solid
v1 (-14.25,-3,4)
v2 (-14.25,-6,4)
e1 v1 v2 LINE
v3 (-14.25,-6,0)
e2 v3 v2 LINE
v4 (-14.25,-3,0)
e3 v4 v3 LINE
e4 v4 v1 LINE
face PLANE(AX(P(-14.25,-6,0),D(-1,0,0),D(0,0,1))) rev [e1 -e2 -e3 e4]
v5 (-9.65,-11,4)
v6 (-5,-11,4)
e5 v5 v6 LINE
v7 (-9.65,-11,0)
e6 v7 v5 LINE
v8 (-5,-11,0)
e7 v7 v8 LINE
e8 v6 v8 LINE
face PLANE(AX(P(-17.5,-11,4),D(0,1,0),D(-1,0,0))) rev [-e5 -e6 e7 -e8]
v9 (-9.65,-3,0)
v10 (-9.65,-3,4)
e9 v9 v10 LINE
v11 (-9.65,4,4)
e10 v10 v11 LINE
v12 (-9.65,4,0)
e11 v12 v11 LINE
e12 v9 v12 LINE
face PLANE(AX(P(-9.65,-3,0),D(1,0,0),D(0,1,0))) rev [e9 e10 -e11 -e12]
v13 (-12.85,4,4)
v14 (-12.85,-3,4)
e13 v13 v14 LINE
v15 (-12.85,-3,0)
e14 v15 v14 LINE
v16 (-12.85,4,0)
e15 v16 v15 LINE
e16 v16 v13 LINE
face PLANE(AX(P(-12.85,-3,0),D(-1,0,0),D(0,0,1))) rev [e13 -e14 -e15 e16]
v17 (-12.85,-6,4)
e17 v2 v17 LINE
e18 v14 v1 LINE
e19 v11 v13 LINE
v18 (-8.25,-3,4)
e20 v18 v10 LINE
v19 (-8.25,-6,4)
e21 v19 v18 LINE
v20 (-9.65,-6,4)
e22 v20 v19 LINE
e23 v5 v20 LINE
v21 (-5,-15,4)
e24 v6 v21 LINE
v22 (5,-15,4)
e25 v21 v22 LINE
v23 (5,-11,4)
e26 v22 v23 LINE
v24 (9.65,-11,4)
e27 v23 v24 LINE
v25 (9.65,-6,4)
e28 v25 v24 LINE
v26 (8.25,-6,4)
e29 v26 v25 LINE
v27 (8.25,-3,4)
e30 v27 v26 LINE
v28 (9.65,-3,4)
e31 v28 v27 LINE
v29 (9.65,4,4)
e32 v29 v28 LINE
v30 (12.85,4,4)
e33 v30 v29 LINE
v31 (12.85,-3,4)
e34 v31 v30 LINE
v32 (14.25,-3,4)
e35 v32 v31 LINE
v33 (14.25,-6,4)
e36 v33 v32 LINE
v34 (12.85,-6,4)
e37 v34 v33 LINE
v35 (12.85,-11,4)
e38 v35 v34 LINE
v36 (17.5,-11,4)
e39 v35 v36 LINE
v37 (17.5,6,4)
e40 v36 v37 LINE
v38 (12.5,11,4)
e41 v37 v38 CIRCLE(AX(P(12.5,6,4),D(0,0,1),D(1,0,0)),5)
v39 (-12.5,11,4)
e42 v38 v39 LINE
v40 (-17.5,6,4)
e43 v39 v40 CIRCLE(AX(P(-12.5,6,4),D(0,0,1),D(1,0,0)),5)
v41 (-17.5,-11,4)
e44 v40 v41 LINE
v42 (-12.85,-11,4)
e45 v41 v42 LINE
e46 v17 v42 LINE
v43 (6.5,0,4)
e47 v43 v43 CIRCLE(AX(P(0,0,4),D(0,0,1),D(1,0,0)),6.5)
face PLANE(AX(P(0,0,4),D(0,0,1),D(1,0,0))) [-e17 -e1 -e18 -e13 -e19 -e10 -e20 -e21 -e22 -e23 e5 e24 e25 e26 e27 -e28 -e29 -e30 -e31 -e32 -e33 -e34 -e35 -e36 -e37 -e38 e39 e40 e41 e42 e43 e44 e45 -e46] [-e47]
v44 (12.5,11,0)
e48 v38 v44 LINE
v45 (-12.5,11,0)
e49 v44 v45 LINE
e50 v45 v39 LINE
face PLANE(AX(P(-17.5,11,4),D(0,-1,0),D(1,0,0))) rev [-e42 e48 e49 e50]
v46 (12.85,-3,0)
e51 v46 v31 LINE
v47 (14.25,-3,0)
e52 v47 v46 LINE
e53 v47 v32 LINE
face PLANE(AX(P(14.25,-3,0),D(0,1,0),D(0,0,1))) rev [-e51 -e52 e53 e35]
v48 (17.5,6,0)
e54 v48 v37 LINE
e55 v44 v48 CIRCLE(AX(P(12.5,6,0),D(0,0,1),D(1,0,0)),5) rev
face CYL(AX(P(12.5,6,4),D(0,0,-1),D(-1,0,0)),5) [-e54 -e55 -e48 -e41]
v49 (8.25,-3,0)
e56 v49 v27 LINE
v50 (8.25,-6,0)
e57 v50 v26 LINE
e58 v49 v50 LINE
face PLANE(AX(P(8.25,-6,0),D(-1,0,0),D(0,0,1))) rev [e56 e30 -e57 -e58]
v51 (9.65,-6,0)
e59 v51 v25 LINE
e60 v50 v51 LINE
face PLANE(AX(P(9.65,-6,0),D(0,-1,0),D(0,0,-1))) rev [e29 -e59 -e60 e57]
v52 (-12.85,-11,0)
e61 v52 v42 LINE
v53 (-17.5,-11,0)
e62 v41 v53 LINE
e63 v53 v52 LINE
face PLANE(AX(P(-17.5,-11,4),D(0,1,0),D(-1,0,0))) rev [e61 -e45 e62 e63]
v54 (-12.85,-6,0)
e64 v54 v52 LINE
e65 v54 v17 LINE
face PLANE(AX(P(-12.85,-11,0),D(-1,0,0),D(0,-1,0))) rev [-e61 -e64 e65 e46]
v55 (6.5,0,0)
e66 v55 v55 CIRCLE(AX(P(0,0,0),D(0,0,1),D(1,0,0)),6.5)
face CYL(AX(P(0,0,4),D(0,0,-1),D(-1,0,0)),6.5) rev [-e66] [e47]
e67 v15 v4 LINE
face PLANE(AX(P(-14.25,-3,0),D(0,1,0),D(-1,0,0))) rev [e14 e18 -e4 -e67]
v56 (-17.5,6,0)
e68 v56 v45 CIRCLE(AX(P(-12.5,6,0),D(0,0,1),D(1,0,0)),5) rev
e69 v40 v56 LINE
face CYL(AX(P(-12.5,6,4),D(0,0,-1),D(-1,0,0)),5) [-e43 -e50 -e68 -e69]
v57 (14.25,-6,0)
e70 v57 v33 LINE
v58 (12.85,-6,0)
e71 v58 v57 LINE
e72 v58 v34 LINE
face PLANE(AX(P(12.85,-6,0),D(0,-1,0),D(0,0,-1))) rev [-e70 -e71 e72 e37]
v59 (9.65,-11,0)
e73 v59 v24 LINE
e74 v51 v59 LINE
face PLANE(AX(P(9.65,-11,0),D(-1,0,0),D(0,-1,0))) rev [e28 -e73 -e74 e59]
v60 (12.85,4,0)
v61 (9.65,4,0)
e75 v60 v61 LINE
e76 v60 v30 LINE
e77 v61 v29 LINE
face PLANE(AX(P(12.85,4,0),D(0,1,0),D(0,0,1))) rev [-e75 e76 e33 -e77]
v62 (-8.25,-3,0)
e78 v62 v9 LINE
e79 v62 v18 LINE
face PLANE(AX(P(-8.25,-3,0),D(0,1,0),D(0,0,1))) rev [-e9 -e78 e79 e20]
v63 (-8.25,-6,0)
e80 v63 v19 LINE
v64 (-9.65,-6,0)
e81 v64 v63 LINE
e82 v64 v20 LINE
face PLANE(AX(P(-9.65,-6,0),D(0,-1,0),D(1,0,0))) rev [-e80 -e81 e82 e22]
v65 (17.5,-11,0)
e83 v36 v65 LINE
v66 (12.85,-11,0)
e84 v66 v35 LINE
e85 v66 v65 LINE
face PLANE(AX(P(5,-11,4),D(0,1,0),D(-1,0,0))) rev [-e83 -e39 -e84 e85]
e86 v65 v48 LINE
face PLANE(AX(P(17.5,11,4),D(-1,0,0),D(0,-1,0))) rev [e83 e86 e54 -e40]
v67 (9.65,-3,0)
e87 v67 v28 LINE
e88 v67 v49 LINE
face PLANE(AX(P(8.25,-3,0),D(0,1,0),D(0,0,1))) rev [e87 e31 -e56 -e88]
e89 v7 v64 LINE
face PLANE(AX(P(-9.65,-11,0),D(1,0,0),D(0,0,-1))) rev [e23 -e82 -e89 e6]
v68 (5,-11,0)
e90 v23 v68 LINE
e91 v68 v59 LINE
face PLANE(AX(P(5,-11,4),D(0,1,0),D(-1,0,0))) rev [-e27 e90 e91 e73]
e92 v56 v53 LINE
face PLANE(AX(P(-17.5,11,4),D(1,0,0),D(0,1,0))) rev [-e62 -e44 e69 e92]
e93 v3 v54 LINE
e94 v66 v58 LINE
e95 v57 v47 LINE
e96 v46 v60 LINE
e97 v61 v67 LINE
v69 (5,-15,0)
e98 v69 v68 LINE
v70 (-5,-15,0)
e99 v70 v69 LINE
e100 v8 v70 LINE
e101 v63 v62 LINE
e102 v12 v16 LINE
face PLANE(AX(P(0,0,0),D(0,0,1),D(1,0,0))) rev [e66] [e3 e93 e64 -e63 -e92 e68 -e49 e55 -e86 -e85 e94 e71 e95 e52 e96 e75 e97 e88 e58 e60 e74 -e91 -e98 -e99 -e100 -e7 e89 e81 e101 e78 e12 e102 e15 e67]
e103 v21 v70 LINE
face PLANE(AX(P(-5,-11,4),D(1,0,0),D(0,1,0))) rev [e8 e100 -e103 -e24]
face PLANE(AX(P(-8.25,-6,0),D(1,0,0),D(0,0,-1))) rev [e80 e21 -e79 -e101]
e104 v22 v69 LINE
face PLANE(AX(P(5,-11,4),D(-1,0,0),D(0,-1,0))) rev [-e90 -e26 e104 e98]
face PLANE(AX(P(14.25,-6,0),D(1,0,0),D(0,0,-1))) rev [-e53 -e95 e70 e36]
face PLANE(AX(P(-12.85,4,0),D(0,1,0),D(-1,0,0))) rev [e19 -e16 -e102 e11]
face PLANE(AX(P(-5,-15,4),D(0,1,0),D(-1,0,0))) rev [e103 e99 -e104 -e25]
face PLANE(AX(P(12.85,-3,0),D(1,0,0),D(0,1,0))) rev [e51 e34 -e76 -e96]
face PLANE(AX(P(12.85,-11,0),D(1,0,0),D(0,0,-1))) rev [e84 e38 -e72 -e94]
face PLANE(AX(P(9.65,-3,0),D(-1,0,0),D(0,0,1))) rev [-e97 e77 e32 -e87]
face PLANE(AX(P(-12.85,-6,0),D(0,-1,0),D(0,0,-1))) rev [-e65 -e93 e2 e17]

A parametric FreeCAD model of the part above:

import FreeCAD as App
import Part
import Sketcher

V = App.Vector
Q = App.Units.Quantity


def edges_at(feature, points):
    """Names of the edges that pass closest to the given points."""
    edges = feature.Shape.Edges
    near = lambda p: min(range(len(edges)), key=lambda i: edges[i].distToShape(Part.Vertex(*p))[0])
    return sorted({f"Edge{near(p) + 1}" for p in points})

doc = App.newDocument("Part")
body = doc.addObject("PartDesign::Body", "Body")

# Sketch on XY plane
sketch1 = body.newObject("Sketcher::SketchObject", "Sketch")
sketch1.AttachmentSupport = (doc.getObject("XY_Plane"), [""])
sketch1.MapMode = "FlatFace"
sketch1.addGeometry([
    Part.LineSegment(V(5, -11, 0), V(17.5, -11, 0)),  # 0
    Part.LineSegment(V(17.5, -11, 0), V(17.5, 11, 0)),  # 1
    Part.LineSegment(V(17.5, 11, 0), V(-17.5, 11, 0)),  # 2
    Part.LineSegment(V(-17.5, 11, 0), V(-17.5, -11, 0)),  # 3
    Part.LineSegment(V(-17.5, -11, 0), V(-5, -11, 0)),  # 4
    Part.LineSegment(V(-5, -11, 0), V(-5, -15, 0)),  # 5
    Part.LineSegment(V(-5, -15, 0), V(5, -15, 0)),  # 6
    Part.LineSegment(V(5, -15, 0), V(5, -11, 0)),  # 7
    Part.Circle(V(0, 0, 0), V(0, 0, 1), 6.5),  # 8
], False)
sketch1.addConstraint([
    Sketcher.Constraint("Coincident", 0, 2, 1, 1),
    Sketcher.Constraint("Coincident", 1, 2, 2, 1),
    Sketcher.Constraint("Coincident", 2, 2, 3, 1),
    Sketcher.Constraint("Coincident", 3, 2, 4, 1),
    Sketcher.Constraint("Coincident", 4, 2, 5, 1),
    Sketcher.Constraint("Coincident", 5, 2, 6, 1),
    Sketcher.Constraint("Coincident", 6, 2, 7, 1),
    Sketcher.Constraint("Coincident", 7, 2, 0, 1),
    Sketcher.Constraint("Horizontal", 0),
    Sketcher.Constraint("Vertical", 1),
    Sketcher.Constraint("Horizontal", 2),
    Sketcher.Constraint("Vertical", 3),
    Sketcher.Constraint("Horizontal", 4),
    Sketcher.Constraint("Vertical", 5),
    Sketcher.Constraint("Horizontal", 6),
    Sketcher.Constraint("Vertical", 7),
    Sketcher.Constraint("Coincident", 8, 3, -1, 1),
    Sketcher.Constraint("Symmetric", 0, 2, 2, 2, -1, 1),
    Sketcher.Constraint("Symmetric", 4, 2, 7, 2, -2),
    Sketcher.Constraint("Diameter", 8, Q("13 mm")),
    Sketcher.Constraint("DistanceX", 2, 2, 2, 1, Q("35 mm")),
    Sketcher.Constraint("DistanceX", 6, 1, 6, 2, Q("10 mm")),
    Sketcher.Constraint("DistanceY", 1, 1, 1, 2, Q("22 mm")),
    Sketcher.Constraint("DistanceY", 5, 2, 5, 1, Q("4 mm")),
])
pad1 = body.newObject("PartDesign::Pad", "Pad")
pad1.Profile = sketch1
pad1.Length = 4

# Sketch on XY plane
sketch2 = body.newObject("Sketcher::SketchObject", "Sketch001")
sketch2.AttachmentSupport = (doc.getObject("XY_Plane"), [""])
sketch2.MapMode = "FlatFace"
sketch2.AttachmentOffset = App.Placement(V(0, 0, 4), App.Rotation())
sketch2.addGeometry([
    Part.LineSegment(V(12.85, -11, 0), V(12.85, -6, 0)),  # 0
    Part.LineSegment(V(12.85, -6, 0), V(14.25, -6, 0)),  # 1
    Part.LineSegment(V(14.25, -6, 0), V(14.25, -3, 0)),  # 2
    Part.LineSegment(V(14.25, -3, 0), V(12.85, -3, 0)),  # 3
    Part.LineSegment(V(12.85, -3, 0), V(12.85, 4, 0)),  # 4
    Part.LineSegment(V(12.85, 4, 0), V(9.65, 4, 0)),  # 5
    Part.LineSegment(V(9.65, 4, 0), V(9.65, -3, 0)),  # 6
    Part.LineSegment(V(9.65, -3, 0), V(8.25, -3, 0)),  # 7
    Part.LineSegment(V(8.25, -3, 0), V(8.25, -6, 0)),  # 8
    Part.LineSegment(V(8.25, -6, 0), V(9.65, -6, 0)),  # 9
    Part.LineSegment(V(9.65, -6, 0), V(9.65, -11, 0)),  # 10
    Part.LineSegment(V(9.65, -11, 0), V(12.85, -11, 0)),  # 11
    Part.LineSegment(V(-12.85, -11, 0), V(-9.65, -11, 0)),  # 12
    Part.LineSegment(V(-9.65, -11, 0), V(-9.65, -6, 0)),  # 13
    Part.LineSegment(V(-9.65, -6, 0), V(-8.25, -6, 0)),  # 14
    Part.LineSegment(V(-8.25, -6, 0), V(-8.25, -3, 0)),  # 15
    Part.LineSegment(V(-8.25, -3, 0), V(-9.65, -3, 0)),  # 16
    Part.LineSegment(V(-9.65, -3, 0), V(-9.65, 4, 0)),  # 17
    Part.LineSegment(V(-9.65, 4, 0), V(-12.85, 4, 0)),  # 18
    Part.LineSegment(V(-12.85, 4, 0), V(-12.85, -3, 0)),  # 19
    Part.LineSegment(V(-12.85, -3, 0), V(-14.25, -3, 0)),  # 20
    Part.LineSegment(V(-14.25, -3, 0), V(-14.25, -6, 0)),  # 21
    Part.LineSegment(V(-14.25, -6, 0), V(-12.85, -6, 0)),  # 22
    Part.LineSegment(V(-12.85, -6, 0), V(-12.85, -11, 0)),  # 23
], False)
sketch2.addConstraint([
    Sketcher.Constraint("Coincident", 0, 2, 1, 1),
    Sketcher.Constraint("Coincident", 1, 2, 2, 1),
    Sketcher.Constraint("Coincident", 2, 2, 3, 1),
    Sketcher.Constraint("Coincident", 3, 2, 4, 1),
    Sketcher.Constraint("Coincident", 4, 2, 5, 1),
    Sketcher.Constraint("Coincident", 5, 2, 6, 1),
    Sketcher.Constraint("Coincident", 6, 2, 7, 1),
    Sketcher.Constraint("Coincident", 7, 2, 8, 1),
    Sketcher.Constraint("Coincident", 8, 2, 9, 1),
    Sketcher.Constraint("Coincident", 9, 2, 10, 1),
    Sketcher.Constraint("Coincident", 10, 2, 11, 1),
    Sketcher.Constraint("Coincident", 11, 2, 0, 1),
    Sketcher.Constraint("Coincident", 12, 2, 13, 1),
    Sketcher.Constraint("Coincident", 13, 2, 14, 1),
    Sketcher.Constraint("Coincident", 14, 2, 15, 1),
    Sketcher.Constraint("Coincident", 15, 2, 16, 1),
    Sketcher.Constraint("Coincident", 16, 2, 17, 1),
    Sketcher.Constraint("Coincident", 17, 2, 18, 1),
    Sketcher.Constraint("Coincident", 18, 2, 19, 1),
    Sketcher.Constraint("Coincident", 19, 2, 20, 1),
    Sketcher.Constraint("Coincident", 20, 2, 21, 1),
    Sketcher.Constraint("Coincident", 21, 2, 22, 1),
    Sketcher.Constraint("Coincident", 22, 2, 23, 1),
    Sketcher.Constraint("Coincident", 23, 2, 12, 1),
    Sketcher.Constraint("Vertical", 0),
    Sketcher.Constraint("Horizontal", 1),
    Sketcher.Constraint("Vertical", 2),
    Sketcher.Constraint("Horizontal", 3),
    Sketcher.Constraint("Vertical", 4),
    Sketcher.Constraint("Horizontal", 5),
    Sketcher.Constraint("Vertical", 6),
    Sketcher.Constraint("Horizontal", 7),
    Sketcher.Constraint("Vertical", 8),
    Sketcher.Constraint("Horizontal", 9),
    Sketcher.Constraint("Vertical", 10),
    Sketcher.Constraint("Horizontal", 11),
    Sketcher.Constraint("Horizontal", 12),
    Sketcher.Constraint("Vertical", 13),
    Sketcher.Constraint("Horizontal", 14),
    Sketcher.Constraint("Vertical", 15),
    Sketcher.Constraint("Horizontal", 16),
    Sketcher.Constraint("Vertical", 17),
    Sketcher.Constraint("Horizontal", 18),
    Sketcher.Constraint("Vertical", 19),
    Sketcher.Constraint("Horizontal", 20),
    Sketcher.Constraint("Vertical", 21),
    Sketcher.Constraint("Horizontal", 22),
    Sketcher.Constraint("Vertical", 23),
    Sketcher.Constraint("Symmetric", 10, 2, 12, 2, -2),
    Sketcher.Constraint("Symmetric", 8, 2, 14, 2, -2),
    Sketcher.Constraint("Symmetric", 6, 2, 16, 2, -2),
    Sketcher.Constraint("Symmetric", 4, 2, 18, 2, -2),
    Sketcher.Constraint("Symmetric", 2, 2, 20, 2, -2),
    Sketcher.Constraint("Symmetric", 0, 2, 22, 2, -2),
    Sketcher.Constraint("Horizontal", 3, 2, 6, 2),
    Sketcher.Constraint("Horizontal", 1, 2, 8, 2),
    Sketcher.Constraint("Vertical", 0, 2, 3, 2),
    Sketcher.Constraint("Vertical", 6, 2, 9, 2),
    Sketcher.Constraint("Equal", 3, 7),
    Sketcher.Constraint("DistanceY", 0, 1, 0, 2, Q("5 mm")),
    Sketcher.Constraint("DistanceY", 2, 1, 2, 2, Q("3 mm")),
    Sketcher.Constraint("DistanceY", 4, 1, 4, 2, Q("7 mm")),
    Sketcher.Constraint("DistanceX", 1, 1, 1, 2, Q("1.4 mm")),
    Sketcher.Constraint("DistanceX", 5, 2, 5, 1, Q("3.2 mm")),
    Sketcher.Constraint("DistanceY", 0, 2, -1, 1, Q("6 mm")),
    Sketcher.Constraint("DistanceX", 12, 2, 8, 2, Q("17.9 mm")),
])
pocket1 = body.newObject("PartDesign::Pocket", "Pocket")
pocket1.Profile = sketch2
pocket1.Type = "ThroughAll"
doc.recompute()

fillet = body.newObject("PartDesign::Fillet", "Fillet")
fillet.Base = (pocket1, edges_at(pocket1, [(-17.5, 11, 2), (17.5, 11, 2)]))
fillet.Radius = 5

doc.recompute()
